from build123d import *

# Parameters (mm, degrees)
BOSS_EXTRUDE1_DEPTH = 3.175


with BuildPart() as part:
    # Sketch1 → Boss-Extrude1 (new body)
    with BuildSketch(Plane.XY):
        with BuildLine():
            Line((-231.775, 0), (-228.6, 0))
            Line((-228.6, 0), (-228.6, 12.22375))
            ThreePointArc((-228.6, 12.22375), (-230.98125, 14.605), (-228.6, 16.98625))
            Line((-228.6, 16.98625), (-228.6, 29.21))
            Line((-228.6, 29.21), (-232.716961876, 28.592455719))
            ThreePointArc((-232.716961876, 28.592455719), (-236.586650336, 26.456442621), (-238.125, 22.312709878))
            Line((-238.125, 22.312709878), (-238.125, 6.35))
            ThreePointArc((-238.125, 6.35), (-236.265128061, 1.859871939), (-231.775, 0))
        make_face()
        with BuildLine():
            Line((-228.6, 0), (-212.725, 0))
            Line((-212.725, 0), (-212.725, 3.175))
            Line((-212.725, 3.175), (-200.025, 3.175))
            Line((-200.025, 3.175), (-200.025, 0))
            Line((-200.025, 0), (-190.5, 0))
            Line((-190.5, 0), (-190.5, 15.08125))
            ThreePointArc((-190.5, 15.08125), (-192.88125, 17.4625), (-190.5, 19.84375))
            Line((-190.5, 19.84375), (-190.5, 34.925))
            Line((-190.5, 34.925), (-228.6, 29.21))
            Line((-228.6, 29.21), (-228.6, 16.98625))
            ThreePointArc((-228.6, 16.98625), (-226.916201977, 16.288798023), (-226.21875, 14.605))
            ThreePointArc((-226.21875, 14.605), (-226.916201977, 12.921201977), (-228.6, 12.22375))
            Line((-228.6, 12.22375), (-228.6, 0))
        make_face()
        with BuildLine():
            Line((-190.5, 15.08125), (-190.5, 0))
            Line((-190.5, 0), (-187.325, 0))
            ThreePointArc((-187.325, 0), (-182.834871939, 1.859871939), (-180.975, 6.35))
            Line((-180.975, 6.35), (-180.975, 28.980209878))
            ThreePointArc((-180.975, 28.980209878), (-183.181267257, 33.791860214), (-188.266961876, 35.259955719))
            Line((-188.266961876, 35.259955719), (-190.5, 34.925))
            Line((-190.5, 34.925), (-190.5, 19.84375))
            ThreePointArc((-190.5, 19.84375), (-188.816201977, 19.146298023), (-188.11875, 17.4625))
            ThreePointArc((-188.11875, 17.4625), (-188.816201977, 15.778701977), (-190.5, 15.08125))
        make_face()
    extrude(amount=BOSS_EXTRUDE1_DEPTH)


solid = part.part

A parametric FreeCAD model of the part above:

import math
import FreeCAD as App
import Part
import Sketcher

V = App.Vector
Q = App.Units.Quantity

doc = App.newDocument("Part")
body = doc.addObject("PartDesign::Body", "Body")

# Sketch on XY plane
sketch1 = body.newObject("Sketcher::SketchObject", "Sketch")
sketch1.AttachmentSupport = (doc.getObject("XY_Plane"), [""])
sketch1.MapMode = "FlatFace"
sketch1.addGeometry([
    Part.LineSegment(V(-231.8, 0, 0), V(-212.7, 0, 0)),  # 0
    Part.LineSegment(V(-212.7, 0, 0), V(-212.7, 3.2, 0)),  # 1
    Part.LineSegment(V(-212.7, 3.2, 0), V(-200, 3.2, 0)),  # 2
    Part.LineSegment(V(-200, 3.2, 0), V(-200, 0, 0)),  # 3
    Part.LineSegment(V(-200, 0, 0), V(-187.3, 0, 0)),  # 4
    Part.ArcOfCircle(Part.Circle(V(-187.3, 6.3, 0), V(0, 0, 1), 6.3), math.radians(-90), math.radians(0)),  # 5
    Part.LineSegment(V(-181, 6.3, 0), V(-181, 29, 0)),  # 6
    Part.ArcOfCircle(Part.Circle(V(-187.3, 29, 0), V(0, 0, 1), 6.3), math.radians(0), math.radians(99)),  # 7
    Part.LineSegment(V(-188.3, 35.3, 0), V(-190.5, 34.9, 0)),  # 8
    Part.LineSegment(V(-190.5, 34.9, 0), V(-228.6, 29.2, 0)),  # 9
    Part.LineSegment(V(-228.6, 29.2, 0), V(-232.7, 28.6, 0)),  # 10
    Part.ArcOfCircle(Part.Circle(V(-231.8, 22.3, 0), V(0, 0, 1), 6.3), math.radians(99), math.radians(180)),  # 11
    Part.LineSegment(V(-238.1, 22.3, 0), V(-238.1, 6.3, 0)),  # 12
    Part.ArcOfCircle(Part.Circle(V(-231.8, 6.3, 0), V(0, 0, 1), 6.3), math.radians(180), math.radians(270)),  # 13
    Part.ArcOfCircle(Part.Circle(V(-190.5, 17.5, 0), V(0, 0, 1), 2.4), math.radians(90), math.radians(270)),  # 14
    Part.ArcOfCircle(Part.Circle(V(-190.5, 17.5, 0), V(0, 0, 1), 2.4), math.radians(0), math.radians(90)),  # 15
    Part.ArcOfCircle(Part.Circle(V(-190.5, 17.5, 0), V(0, 0, 1), 2.4), math.radians(-90), math.radians(0)),  # 16
    Part.ArcOfCircle(Part.Circle(V(-228.6, 14.6, 0), V(0, 0, 1), 2.4), math.radians(90), math.radians(270)),  # 17
    Part.ArcOfCircle(Part.Circle(V(-228.6, 14.6, 0), V(0, 0, 1), 2.4), math.radians(0), math.radians(90)),  # 18
    Part.ArcOfCircle(Part.Circle(V(-228.6, 14.6, 0), V(0, 0, 1), 2.4), math.radians(-90), math.radians(0)),  # 19
], False)
sketch1.addConstraint([
    Sketcher.Constraint("Coincident", 0, 2, 1, 1),
    Sketcher.Constraint("Coincident", 1, 2, 2, 1),
    Sketcher.Constraint("Coincident", 2, 2, 3, 1),
    Sketcher.Constraint("Coincident", 3, 2, 4, 1),
    Sketcher.Constraint("Tangent", 4, 2, 5, 1),
    Sketcher.Constraint("Tangent", 5, 2, 6, 1),
    Sketcher.Constraint("Tangent", 6, 2, 7, 1),
    Sketcher.Constraint("Tangent", 7, 2, 8, 1),
    Sketcher.Constraint("Coincident", 8, 2, 9, 1),
    Sketcher.Constraint("Coincident", 9, 2, 10, 1),
    Sketcher.Constraint("Tangent", 10, 2, 11, 1),
    Sketcher.Constraint("Tangent", 11, 2, 12, 1),
    Sketcher.Constraint("Tangent", 12, 2, 13, 1),
    Sketcher.Constraint("Tangent", 13, 2, 0, 1),
    Sketcher.Constraint("Tangent", 14, 1, 15, 2),
    Sketcher.Constraint("Tangent", 15, 1, 16, 2),
    Sketcher.Constraint("Tangent", 16, 1, 14, 2),
    Sketcher.Constraint("Tangent", 17, 1, 18, 2),
    Sketcher.Constraint("Tangent", 18, 1, 19, 2),
    Sketcher.Constraint("Tangent", 19, 1, 17, 2),
    Sketcher.Constraint("Horizontal", 0),
    Sketcher.Constraint("Vertical", 1),
    Sketcher.Constraint("Horizontal", 2),
    Sketcher.Constraint("Vertical", 3),
    Sketcher.Constraint("Horizontal", 4),
    Sketcher.Constraint("Vertical", 6),
    Sketcher.Constraint("Vertical", 12),
    Sketcher.Constraint("Equal", 5, 7),
    Sketcher.Constraint("Equal", 7, 11),
    Sketcher.Constraint("Equal", 11, 13),
    Sketcher.Constraint("Equal", 16, 17),
    Sketcher.Constraint("PointOnObject", 0, 2, -1),
    Sketcher.Constraint("PointOnObject", 3, 2, -1),
    Sketcher.Constraint("Parallel", 8, 9),
    Sketcher.Constraint("Parallel", 9, 10),
    Sketcher.Constraint("Horizontal", 16, 3, 15, 1),
    Sketcher.Constraint("Horizontal", 19, 3, 18, 1),
    Sketcher.Constraint("Vertical", 16, 3, 8, 2),
    Sketcher.Constraint("Vertical", 19, 3, 9, 2),
    Sketcher.Constraint("Vertical", 8, 2, 14, 1),
    Sketcher.Constraint("Vertical", 14, 1, 16, 1),
    Sketcher.Constraint("Vertical", 9, 2, 17, 1),
    Sketcher.Constraint("Vertical", 17, 1, 19, 1),
    Sketcher.Constraint("Equal", 2, 4),
    Sketcher.Constraint("Radius", 5, Q("0.25 in")),
    Sketcher.Constraint("DistanceX", 2, 1, 2, 2, Q("0.5 in")),
    Sketcher.Constraint("DistanceX", 17, 3, -1, 1, Q("9 in")),
    Sketcher.Constraint("Radius", 14, Q("0.09375 in")),
    Sketcher.Constraint("DistanceX", 0, 1, 0, 2, Q("0.75 in")),
    Sketcher.Constraint("DistanceX", 14, 3, -1, 1, Q("7.5 in")),
    Sketcher.Constraint("DistanceY", 13, 3, 9, 2, Q("0.9 in")),
    Sketcher.Constraint("DistanceY", 1, 1, 1, 2, Q("0.125 in")),
    Sketcher.Constraint("DistanceY", 1, 2, 19, 3, Q("0.45 in")),
    Sketcher.Constraint("DistanceX", 5, 3, -1, 1, Q("7.375 in")),
    Sketcher.Constraint("DistanceY", -1, 1, 14, 3, Q("0.6875 in")),
    Sketcher.Constraint("DistanceY", -1, 1, 8, 2, Q("1.375 in")),
])
pad1 = body.newObject("PartDesign::Pad", "Pad")
pad1.Profile = sketch1
pad1.Length = Q("0.125 in")

doc.recompute()
